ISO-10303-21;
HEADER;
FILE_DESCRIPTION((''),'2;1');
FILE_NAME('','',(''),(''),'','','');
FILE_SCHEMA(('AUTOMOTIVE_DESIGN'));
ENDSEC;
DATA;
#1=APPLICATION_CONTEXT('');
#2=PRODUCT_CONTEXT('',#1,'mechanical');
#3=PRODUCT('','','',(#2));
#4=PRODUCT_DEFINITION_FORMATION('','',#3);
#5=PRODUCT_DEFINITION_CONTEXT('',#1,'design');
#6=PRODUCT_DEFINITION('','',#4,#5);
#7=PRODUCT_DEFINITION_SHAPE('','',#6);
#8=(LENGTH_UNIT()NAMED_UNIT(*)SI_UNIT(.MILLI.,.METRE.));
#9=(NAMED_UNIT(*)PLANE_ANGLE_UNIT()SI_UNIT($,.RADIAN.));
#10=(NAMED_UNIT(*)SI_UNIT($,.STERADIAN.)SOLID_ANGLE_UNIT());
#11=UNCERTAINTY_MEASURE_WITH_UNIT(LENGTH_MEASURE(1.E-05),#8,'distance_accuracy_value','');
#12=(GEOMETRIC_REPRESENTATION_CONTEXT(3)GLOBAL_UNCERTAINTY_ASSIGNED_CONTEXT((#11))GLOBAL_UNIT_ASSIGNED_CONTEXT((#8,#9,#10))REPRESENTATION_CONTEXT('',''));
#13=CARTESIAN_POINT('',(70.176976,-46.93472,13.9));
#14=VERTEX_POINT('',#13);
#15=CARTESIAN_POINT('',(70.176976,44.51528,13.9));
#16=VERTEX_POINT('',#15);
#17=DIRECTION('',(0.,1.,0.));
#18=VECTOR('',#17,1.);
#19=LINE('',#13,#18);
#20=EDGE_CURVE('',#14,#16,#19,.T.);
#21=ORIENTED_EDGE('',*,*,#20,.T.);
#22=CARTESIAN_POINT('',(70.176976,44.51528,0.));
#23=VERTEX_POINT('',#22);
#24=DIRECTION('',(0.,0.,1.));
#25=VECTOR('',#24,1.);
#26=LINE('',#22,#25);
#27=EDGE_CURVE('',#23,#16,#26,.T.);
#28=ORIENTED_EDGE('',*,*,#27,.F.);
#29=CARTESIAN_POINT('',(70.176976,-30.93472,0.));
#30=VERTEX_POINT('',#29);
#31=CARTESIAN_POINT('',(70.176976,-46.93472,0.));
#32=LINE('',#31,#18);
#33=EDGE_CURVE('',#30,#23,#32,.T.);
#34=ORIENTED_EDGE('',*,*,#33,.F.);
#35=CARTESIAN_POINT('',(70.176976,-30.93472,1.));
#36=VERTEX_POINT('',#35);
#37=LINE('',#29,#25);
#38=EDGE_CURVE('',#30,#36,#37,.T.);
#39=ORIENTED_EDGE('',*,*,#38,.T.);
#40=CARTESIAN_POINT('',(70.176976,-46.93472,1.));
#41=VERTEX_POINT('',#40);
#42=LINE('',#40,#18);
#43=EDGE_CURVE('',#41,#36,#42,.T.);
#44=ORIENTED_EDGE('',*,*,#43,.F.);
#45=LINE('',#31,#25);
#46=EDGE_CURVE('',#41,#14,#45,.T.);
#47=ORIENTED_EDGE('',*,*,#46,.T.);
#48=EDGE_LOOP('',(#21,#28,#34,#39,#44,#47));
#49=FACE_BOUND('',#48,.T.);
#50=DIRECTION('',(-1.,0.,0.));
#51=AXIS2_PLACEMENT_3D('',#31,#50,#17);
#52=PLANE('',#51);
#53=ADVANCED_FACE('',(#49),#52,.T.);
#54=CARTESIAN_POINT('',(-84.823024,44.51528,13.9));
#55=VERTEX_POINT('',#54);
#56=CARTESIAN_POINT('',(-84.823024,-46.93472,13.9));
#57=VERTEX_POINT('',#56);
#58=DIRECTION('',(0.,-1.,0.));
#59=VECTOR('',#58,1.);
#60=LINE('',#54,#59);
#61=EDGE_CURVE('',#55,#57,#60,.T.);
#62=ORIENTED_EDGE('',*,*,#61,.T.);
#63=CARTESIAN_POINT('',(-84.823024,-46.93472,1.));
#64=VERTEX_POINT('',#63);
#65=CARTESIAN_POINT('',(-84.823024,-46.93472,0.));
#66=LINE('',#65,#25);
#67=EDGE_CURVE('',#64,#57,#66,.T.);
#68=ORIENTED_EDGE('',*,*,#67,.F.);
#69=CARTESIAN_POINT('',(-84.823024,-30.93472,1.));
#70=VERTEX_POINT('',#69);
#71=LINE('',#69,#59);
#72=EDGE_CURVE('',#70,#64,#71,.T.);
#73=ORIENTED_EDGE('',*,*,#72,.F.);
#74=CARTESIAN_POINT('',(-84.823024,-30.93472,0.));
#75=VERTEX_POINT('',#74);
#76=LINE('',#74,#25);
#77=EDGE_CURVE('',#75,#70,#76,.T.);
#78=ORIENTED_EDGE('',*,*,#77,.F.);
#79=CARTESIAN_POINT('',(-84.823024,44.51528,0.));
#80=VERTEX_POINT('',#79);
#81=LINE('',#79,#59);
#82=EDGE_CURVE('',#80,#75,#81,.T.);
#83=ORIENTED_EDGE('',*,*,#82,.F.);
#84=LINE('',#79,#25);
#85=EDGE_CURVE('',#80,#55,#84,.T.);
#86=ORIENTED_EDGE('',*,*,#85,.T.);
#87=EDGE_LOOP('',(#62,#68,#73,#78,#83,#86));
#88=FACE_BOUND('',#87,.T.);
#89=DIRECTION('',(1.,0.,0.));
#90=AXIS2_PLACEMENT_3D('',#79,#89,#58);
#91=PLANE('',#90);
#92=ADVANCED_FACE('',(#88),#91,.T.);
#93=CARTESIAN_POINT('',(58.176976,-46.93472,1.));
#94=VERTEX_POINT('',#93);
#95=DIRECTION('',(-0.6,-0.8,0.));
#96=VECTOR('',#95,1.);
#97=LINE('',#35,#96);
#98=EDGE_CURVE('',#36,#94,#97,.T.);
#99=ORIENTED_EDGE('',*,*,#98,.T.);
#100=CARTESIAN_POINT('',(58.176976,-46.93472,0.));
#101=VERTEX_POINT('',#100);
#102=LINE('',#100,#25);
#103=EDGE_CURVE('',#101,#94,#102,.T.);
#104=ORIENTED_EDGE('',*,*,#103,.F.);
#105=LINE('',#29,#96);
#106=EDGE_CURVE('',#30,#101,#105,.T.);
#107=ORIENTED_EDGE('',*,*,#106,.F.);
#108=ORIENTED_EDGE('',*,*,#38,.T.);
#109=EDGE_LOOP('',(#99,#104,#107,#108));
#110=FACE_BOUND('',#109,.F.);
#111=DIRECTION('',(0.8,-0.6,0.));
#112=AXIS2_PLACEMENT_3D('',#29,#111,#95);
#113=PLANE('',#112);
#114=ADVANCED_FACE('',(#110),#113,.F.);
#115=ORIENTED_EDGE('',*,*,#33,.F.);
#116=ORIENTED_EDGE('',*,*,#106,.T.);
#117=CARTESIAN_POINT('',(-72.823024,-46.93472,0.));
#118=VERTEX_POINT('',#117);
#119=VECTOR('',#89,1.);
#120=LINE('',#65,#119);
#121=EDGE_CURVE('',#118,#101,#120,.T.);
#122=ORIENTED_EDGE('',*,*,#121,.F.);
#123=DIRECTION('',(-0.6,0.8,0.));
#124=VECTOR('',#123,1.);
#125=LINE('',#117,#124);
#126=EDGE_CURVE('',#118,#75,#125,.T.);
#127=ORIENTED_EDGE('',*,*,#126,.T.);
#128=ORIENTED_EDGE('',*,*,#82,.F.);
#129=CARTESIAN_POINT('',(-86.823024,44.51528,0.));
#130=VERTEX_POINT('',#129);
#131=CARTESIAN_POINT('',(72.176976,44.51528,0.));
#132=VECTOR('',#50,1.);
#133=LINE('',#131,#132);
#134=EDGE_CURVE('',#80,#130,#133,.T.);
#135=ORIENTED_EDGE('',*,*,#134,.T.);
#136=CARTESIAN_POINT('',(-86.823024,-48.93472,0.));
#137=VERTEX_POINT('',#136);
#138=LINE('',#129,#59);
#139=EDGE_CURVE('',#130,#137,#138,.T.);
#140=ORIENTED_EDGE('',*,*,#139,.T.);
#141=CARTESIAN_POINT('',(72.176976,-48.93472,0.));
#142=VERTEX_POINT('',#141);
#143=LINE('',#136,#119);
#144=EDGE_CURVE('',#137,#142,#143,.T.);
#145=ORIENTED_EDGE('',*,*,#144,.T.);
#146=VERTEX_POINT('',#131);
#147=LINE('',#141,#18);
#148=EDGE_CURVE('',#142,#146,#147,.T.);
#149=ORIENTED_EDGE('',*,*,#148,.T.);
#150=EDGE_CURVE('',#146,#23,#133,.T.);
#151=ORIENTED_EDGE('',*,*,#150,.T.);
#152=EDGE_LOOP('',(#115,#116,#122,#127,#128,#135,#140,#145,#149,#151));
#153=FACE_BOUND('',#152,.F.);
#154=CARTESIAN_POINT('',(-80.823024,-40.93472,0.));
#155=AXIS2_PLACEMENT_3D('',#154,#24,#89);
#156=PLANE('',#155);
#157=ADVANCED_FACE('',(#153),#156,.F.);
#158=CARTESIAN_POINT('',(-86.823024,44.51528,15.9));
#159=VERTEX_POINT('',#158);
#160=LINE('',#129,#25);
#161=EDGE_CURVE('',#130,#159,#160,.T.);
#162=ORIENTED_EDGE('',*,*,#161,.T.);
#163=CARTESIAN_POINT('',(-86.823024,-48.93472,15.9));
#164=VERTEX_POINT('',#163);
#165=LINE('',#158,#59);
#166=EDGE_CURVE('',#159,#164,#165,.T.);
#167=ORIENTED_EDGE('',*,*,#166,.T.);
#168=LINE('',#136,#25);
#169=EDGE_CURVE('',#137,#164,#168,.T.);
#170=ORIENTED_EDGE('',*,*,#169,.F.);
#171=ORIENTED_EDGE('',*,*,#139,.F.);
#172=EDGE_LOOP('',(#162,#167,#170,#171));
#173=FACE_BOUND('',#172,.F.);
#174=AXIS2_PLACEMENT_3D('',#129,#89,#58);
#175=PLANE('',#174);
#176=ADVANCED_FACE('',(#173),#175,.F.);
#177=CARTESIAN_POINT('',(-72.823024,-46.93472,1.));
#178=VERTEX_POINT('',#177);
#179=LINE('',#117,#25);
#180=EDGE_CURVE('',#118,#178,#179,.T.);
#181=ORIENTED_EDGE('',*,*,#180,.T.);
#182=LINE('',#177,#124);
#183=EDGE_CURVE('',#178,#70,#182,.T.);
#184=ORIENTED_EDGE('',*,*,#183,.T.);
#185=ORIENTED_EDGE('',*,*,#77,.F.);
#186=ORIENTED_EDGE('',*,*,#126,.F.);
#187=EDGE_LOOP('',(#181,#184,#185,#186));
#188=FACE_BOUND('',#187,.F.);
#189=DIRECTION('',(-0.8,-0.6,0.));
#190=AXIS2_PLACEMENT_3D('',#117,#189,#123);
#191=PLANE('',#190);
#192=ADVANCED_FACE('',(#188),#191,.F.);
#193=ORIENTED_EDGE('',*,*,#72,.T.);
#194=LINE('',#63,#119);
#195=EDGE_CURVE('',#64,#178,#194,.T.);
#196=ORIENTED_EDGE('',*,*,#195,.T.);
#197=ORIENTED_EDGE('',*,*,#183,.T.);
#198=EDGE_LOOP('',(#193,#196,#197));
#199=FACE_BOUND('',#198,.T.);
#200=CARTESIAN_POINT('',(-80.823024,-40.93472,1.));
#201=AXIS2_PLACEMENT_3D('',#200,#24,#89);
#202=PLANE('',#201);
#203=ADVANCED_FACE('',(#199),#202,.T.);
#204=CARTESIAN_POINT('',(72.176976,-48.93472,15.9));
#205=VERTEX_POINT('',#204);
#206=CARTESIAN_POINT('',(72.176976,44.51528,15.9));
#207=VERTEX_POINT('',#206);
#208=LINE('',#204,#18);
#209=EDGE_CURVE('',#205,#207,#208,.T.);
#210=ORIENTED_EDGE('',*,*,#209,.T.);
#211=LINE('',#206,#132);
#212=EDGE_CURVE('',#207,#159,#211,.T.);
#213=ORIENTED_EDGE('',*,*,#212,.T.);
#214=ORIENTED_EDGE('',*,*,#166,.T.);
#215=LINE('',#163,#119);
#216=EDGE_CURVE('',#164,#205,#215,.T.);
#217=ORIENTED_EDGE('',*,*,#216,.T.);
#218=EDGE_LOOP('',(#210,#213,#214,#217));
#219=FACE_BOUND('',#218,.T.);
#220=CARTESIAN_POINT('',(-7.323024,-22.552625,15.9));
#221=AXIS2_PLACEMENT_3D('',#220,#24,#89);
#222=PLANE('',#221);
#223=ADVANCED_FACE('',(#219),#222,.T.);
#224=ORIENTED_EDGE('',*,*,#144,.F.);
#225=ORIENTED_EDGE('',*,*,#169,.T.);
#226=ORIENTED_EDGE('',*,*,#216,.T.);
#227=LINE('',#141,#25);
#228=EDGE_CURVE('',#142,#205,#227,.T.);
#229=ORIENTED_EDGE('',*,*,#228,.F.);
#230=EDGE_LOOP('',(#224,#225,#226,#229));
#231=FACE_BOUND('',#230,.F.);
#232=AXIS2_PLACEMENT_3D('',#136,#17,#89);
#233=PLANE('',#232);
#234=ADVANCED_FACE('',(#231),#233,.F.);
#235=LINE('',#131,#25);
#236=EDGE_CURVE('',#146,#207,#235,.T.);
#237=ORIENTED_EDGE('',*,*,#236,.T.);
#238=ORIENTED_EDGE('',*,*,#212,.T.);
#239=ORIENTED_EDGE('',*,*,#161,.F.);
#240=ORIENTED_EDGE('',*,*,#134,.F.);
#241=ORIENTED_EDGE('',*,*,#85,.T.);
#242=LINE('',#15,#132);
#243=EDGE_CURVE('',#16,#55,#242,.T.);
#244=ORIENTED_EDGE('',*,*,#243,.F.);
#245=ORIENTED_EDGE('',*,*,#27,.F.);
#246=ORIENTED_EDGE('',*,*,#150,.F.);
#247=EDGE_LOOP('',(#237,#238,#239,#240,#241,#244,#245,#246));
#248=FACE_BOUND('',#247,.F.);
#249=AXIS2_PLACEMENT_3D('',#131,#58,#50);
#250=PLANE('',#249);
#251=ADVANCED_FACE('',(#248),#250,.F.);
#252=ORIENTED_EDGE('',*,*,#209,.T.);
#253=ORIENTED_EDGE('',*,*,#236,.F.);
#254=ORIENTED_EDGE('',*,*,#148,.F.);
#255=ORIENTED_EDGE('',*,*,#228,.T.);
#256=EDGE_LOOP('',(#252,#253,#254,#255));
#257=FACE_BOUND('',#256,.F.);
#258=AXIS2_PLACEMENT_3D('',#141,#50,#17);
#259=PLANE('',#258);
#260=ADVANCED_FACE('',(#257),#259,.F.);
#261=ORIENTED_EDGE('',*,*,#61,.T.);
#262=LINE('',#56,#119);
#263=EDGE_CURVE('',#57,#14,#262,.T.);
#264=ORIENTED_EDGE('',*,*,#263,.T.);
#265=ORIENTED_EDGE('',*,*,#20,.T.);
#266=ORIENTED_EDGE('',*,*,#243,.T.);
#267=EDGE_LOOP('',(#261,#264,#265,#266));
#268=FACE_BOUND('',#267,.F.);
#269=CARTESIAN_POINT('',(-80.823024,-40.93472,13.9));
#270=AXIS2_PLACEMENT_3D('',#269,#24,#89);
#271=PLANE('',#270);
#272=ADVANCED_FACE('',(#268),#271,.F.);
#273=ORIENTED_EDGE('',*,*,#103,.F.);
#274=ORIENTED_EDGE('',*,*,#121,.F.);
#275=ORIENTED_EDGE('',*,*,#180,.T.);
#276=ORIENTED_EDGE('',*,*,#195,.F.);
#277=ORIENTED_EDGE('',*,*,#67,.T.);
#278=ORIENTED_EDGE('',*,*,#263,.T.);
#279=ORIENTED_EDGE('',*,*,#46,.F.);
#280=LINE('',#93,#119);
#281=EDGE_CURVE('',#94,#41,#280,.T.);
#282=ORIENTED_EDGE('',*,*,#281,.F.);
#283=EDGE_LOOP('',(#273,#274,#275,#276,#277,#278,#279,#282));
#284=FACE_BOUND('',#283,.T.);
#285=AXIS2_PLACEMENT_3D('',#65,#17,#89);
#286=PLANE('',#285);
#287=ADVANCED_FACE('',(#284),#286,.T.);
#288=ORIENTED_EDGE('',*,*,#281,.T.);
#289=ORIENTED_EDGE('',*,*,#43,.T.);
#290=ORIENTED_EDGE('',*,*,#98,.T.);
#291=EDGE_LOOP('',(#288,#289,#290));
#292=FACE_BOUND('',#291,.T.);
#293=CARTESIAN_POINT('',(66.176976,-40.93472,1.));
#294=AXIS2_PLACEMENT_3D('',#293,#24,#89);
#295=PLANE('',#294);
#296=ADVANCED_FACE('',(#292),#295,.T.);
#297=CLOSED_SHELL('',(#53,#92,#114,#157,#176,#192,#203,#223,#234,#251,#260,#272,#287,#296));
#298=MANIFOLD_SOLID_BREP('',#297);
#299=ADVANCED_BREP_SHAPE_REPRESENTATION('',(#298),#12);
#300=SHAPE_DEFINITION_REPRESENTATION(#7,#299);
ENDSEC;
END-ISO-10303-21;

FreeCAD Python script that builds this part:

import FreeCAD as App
import Part
import Sketcher
Q = App.Units.Quantity

doc = App.newDocument("Part")
body = doc.addObject("PartDesign::Body", "Body")

# Sketch on XY plane
sketch1 = body.newObject("Sketcher::SketchObject", "Sketch")
sketch1.AttachmentSupport = (doc.getObject("XY_Plane"), [""])
sketch1.MapMode = "FlatFace"
sketch1.addGeometry([
    Part.LineSegment(App.Vector(-86.823024, 44.51528, 0), App.Vector(-86.823024, -48.93472, 0)),
    Part.LineSegment(App.Vector(-86.823024, -48.93472, 0), App.Vector(72.176976, -48.93472, 0)),
    Part.LineSegment(App.Vector(72.176976, -48.93472, 0), App.Vector(72.176976, 44.51528, 0)),
    Part.LineSegment(App.Vector(72.176976, 44.51528, 0), App.Vector(-86.823024, 44.51528, 0)),
], False)
sketch1.addConstraint([
    Sketcher.Constraint("Coincident", 0, 2, 1, 1),
    Sketcher.Constraint("Coincident", 1, 2, 2, 1),
    Sketcher.Constraint("Coincident", 2, 2, 3, 1),
    Sketcher.Constraint("Coincident", 3, 2, 0, 1),
    Sketcher.Constraint("Vertical", 0),
    Sketcher.Constraint("Horizontal", 1),
    Sketcher.Constraint("Vertical", 2),
    Sketcher.Constraint("Horizontal", 3),
    Sketcher.Constraint("DistanceX", 1, 1, 1, 2, Q("159 mm")),
    Sketcher.Constraint("DistanceY", 0, 2, 0, 1, Q("93.45 mm")),
    Sketcher.Constraint("DistanceY", 0, 2, -1, 1, Q("48.93472 mm")),
    Sketcher.Constraint("DistanceX", 0, 2, -1, 1, Q("86.823024 mm")),
])
pad1 = body.newObject("PartDesign::Pad", "Pad")
pad1.Profile = sketch1
pad1.Length = 15.9

# Sketch on XY plane
sketch2 = body.newObject("Sketcher::SketchObject", "Sketch001")
sketch2.AttachmentSupport = (doc.getObject("XY_Plane"), [""])
sketch2.MapMode = "FlatFace"
sketch2.addGeometry([
    Part.LineSegment(App.Vector(-84.823024, -46.93472, 0), App.Vector(70.176976, -46.93472, 0)),
    Part.LineSegment(App.Vector(70.176976, -46.93472, 0), App.Vector(70.176976, 44.51528, 0)),
    Part.LineSegment(App.Vector(70.176976, 44.51528, 0), App.Vector(-84.823024, 44.51528, 0)),
    Part.LineSegment(App.Vector(-84.823024, 44.51528, 0), App.Vector(-84.823024, -46.93472, 0)),
], False)
sketch2.addConstraint([
    Sketcher.Constraint("Coincident", 0, 2, 1, 1),
    Sketcher.Constraint("Coincident", 1, 2, 2, 1),
    Sketcher.Constraint("Coincident", 2, 2, 3, 1),
    Sketcher.Constraint("Coincident", 3, 2, 0, 1),
    Sketcher.Constraint("Horizontal", 0),
    Sketcher.Constraint("Vertical", 1),
    Sketcher.Constraint("Horizontal", 2),
    Sketcher.Constraint("Vertical", 3),
    Sketcher.Constraint("DistanceX", 0, 1, 0, 2, Q("155 mm")),
    Sketcher.Constraint("DistanceY", 1, 1, 1, 2, Q("91.45 mm")),
    Sketcher.Constraint("DistanceY", 0, 2, -1, 1, Q("46.93472 mm")),
    Sketcher.Constraint("DistanceX", -1, 1, 0, 2, Q("70.176976 mm")),
])
pocket1 = body.newObject("PartDesign::Pocket", "Pocket")
pocket1.Profile = sketch2
pocket1.Length = 13.9
pocket1.Reversed = True

# Sketch on XY plane
sketch3 = body.newObject("Sketcher::SketchObject", "Sketch002")
sketch3.AttachmentSupport = (doc.getObject("XY_Plane"), [""])
sketch3.MapMode = "FlatFace"
sketch3.addGeometry([
    Part.LineSegment(App.Vector(-72.823024, -46.93472, 0), App.Vector(-84.823024, -30.93472, 0)),  # 0
    Part.LineSegment(App.Vector(-84.823024, -30.93472, 0), App.Vector(-84.823024, -46.93472, 0)),  # 1
    Part.LineSegment(App.Vector(-84.823024, -46.93472, 0), App.Vector(-72.823024, -46.93472, 0)),  # 2
    Part.LineSegment(App.Vector(70.176976, -46.93472, 0), App.Vector(70.176976, -30.93472, 0)),  # 3
    Part.LineSegment(App.Vector(70.176976, -30.93472, 0), App.Vector(58.176976, -46.93472, 0)),  # 4
    Part.LineSegment(App.Vector(58.176976, -46.93472, 0), App.Vector(70.176976, -46.93472, 0)),  # 5
], False)
sketch3.addConstraint([
    Sketcher.Constraint("Coincident", 0, 2, 1, 1),
    Sketcher.Constraint("Coincident", 1, 2, 2, 1),
    Sketcher.Constraint("Coincident", 2, 2, 0, 1),
    Sketcher.Constraint("Coincident", 3, 2, 4, 1),
    Sketcher.Constraint("Coincident", 4, 2, 5, 1),
    Sketcher.Constraint("Coincident", 5, 2, 3, 1),
    Sketcher.Constraint("Vertical", 1),
    Sketcher.Constraint("Horizontal", 2),
    Sketcher.Constraint("Vertical", 3),
    Sketcher.Constraint("Horizontal", 5),
    Sketcher.Constraint("Horizontal", 0, 2, 3, 2),
    Sketcher.Constraint("Horizontal", 2, 2, 4, 2),
    Sketcher.Constraint("Equal", 2, 5),
    Sketcher.Constraint("DistanceX", 2, 1, 2, 2, Q("12 mm")),
    Sketcher.Constraint("DistanceY", 1, 2, 1, 1, Q("16 mm")),
    Sketcher.Constraint("DistanceX", 2, 2, 3, 2, Q("143 mm")),
    Sketcher.Constraint("DistanceY", 0, 2, -1, 1, Q("30.93472 mm")),
    Sketcher.Constraint("DistanceX", 0, 2, -1, 1, Q("84.823024 mm")),
])
pad2 = body.newObject("PartDesign::Pad", "Pad001")
pad2.Profile = sketch3
pad2.Length = 1

doc.recompute()
